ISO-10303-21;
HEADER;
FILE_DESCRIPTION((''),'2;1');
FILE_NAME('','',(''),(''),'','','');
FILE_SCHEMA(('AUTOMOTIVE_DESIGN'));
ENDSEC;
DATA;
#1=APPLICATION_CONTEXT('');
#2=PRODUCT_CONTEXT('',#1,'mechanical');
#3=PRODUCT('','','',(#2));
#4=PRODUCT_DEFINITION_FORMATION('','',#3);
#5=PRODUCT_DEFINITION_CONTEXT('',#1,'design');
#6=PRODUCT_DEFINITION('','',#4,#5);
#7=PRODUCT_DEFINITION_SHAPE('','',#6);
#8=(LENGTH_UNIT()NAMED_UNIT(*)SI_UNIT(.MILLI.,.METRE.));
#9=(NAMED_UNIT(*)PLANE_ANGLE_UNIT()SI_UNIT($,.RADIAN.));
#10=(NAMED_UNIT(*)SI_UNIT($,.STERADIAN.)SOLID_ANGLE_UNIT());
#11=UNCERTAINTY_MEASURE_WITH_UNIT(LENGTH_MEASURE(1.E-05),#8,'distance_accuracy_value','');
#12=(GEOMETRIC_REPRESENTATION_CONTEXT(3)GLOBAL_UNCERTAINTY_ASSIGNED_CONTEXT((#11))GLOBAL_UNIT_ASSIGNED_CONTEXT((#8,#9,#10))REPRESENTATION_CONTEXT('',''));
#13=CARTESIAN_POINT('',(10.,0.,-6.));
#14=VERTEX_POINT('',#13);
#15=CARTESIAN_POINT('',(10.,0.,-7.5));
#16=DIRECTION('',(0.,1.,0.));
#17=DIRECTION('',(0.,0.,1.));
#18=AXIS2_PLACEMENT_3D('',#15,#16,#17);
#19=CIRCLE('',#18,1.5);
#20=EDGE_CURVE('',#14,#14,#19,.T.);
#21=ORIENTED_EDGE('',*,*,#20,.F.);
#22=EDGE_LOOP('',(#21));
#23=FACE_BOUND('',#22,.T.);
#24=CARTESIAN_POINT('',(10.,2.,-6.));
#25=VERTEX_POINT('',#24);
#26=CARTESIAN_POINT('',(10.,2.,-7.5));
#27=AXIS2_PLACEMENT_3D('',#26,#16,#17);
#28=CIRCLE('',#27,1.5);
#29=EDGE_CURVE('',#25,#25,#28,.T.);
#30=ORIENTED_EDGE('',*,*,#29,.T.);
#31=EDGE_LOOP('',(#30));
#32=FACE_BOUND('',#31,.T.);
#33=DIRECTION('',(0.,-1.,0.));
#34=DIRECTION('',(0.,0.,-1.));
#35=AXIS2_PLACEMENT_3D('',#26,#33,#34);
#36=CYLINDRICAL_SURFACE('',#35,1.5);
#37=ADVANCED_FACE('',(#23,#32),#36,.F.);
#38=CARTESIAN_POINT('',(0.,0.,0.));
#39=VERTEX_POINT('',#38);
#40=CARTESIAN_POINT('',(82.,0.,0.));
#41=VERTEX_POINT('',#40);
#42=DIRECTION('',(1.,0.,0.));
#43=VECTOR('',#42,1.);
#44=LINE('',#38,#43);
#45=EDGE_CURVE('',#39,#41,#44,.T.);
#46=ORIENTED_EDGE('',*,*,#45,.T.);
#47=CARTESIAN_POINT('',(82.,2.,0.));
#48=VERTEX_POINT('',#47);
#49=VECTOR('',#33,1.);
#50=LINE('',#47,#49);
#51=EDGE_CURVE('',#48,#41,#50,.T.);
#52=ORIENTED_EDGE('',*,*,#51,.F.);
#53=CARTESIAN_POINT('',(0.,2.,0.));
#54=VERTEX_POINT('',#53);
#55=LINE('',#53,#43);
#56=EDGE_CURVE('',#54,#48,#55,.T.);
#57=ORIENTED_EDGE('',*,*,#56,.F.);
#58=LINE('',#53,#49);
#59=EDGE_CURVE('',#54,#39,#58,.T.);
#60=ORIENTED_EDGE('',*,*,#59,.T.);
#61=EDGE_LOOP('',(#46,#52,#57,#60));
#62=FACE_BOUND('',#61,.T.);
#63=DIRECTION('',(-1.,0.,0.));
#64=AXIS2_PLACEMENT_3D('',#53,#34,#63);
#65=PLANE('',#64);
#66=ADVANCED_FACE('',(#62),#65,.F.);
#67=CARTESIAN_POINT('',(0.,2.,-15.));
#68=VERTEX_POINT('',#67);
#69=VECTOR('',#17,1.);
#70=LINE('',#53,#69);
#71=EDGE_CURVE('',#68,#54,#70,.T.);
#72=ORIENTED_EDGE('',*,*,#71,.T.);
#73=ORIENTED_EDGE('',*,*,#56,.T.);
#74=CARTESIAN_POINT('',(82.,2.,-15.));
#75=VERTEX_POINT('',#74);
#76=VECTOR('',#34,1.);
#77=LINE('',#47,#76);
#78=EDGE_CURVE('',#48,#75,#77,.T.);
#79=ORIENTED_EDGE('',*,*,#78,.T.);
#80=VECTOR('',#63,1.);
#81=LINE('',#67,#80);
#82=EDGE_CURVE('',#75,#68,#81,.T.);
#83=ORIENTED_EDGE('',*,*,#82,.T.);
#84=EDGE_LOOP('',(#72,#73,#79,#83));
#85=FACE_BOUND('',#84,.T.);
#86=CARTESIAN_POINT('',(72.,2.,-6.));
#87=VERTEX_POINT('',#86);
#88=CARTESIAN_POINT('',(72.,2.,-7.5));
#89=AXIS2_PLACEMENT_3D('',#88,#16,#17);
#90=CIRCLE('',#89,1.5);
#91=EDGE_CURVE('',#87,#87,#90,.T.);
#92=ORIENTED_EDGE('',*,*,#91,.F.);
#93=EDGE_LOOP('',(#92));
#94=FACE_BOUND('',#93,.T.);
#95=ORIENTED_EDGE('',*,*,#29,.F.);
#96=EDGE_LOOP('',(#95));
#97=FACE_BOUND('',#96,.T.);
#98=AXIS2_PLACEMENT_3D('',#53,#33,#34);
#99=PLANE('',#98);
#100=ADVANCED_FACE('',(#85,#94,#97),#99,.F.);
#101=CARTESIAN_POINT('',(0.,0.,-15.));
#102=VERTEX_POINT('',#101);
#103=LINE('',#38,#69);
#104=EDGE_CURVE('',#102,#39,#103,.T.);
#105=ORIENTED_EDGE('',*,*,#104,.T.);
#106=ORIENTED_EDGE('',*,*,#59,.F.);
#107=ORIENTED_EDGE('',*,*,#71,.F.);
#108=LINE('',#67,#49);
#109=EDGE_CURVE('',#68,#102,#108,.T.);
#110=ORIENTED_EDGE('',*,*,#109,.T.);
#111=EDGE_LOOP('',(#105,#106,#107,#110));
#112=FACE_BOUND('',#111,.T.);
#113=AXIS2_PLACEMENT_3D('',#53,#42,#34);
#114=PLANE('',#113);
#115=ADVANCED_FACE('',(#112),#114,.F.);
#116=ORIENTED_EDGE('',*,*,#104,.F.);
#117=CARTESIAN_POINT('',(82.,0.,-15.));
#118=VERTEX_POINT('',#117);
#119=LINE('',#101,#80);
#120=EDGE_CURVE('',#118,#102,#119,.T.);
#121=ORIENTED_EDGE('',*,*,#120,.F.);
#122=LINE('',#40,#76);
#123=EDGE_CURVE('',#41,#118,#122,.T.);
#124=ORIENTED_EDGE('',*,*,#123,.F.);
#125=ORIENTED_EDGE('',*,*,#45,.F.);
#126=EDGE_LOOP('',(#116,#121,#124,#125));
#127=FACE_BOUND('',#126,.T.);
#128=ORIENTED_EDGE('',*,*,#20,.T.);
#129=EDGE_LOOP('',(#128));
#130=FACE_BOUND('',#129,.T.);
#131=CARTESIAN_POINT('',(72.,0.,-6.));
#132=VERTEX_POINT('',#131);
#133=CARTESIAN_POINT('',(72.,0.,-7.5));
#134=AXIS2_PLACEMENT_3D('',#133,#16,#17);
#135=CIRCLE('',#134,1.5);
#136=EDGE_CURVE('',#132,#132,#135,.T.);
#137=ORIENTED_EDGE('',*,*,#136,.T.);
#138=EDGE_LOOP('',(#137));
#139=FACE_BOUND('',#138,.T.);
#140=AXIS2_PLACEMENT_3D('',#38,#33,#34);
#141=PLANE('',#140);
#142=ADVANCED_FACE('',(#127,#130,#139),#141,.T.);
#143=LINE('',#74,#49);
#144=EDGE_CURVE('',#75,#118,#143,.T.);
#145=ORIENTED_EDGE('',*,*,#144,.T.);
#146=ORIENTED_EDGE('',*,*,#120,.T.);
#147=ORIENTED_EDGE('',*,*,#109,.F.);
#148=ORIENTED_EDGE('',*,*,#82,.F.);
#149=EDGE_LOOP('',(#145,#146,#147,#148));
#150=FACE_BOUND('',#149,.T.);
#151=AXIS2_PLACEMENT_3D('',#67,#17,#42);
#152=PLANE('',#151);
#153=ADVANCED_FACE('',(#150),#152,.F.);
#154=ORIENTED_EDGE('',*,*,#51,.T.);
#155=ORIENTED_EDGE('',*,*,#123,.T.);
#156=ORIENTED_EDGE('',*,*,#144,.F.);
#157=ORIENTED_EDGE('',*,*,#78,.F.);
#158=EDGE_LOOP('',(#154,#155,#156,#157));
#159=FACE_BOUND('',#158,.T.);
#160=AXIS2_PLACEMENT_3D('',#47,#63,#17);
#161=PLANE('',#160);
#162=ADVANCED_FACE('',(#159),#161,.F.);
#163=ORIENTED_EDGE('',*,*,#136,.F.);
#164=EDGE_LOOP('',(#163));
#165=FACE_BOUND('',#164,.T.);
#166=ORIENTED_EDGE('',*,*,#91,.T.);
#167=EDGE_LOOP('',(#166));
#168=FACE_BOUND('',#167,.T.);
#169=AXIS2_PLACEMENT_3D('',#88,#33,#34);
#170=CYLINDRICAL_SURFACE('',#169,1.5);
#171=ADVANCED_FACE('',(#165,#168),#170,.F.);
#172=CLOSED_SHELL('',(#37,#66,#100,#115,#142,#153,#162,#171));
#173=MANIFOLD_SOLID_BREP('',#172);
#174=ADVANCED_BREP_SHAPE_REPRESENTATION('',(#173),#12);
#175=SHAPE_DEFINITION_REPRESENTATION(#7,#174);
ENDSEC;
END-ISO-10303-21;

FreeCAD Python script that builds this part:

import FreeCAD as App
import Part
import Sketcher

V = App.Vector

doc = App.newDocument("Part")
body = doc.addObject("PartDesign::Body", "Body")

sketch1 = body.newObject("Sketcher::SketchObject", "Sketch")
sketch1.AttachmentSupport = (doc.getObject("XZ_Plane"), [""])
sketch1.MapMode = "FlatFace"
sketch1.addGeometry([
    Part.LineSegment(V(0, -15, 0), V(0, 0, 0)),
    Part.LineSegment(V(0, 0, 0), V(82, 0, 0)),
    Part.LineSegment(V(82, 0, 0), V(82, -15, 0)),
    Part.LineSegment(V(82, -15, 0), V(0, -15, 0)),
    Part.Circle(V(10, -7.5, 0), V(0, 0, 1), 1.5),
    Part.Circle(V(72, -7.5, 0), V(0, 0, 1), 1.5),
], False)
sketch1.addConstraint([
    Sketcher.Constraint("Coincident", 0, 2, 1, 1),
    Sketcher.Constraint("Coincident", 1, 2, 2, 1),
    Sketcher.Constraint("Coincident", 2, 2, 3, 1),
    Sketcher.Constraint("Coincident", 3, 2, 0, 1),
    Sketcher.Constraint("Vertical", 0),
    Sketcher.Constraint("Horizontal", 1),
    Sketcher.Constraint("Vertical", 2),
    Sketcher.Constraint("Horizontal", 3),
    Sketcher.Constraint("Coincident", 0, 2, -1, 1),
    Sketcher.Constraint("Equal", 4, 5),
    Sketcher.Constraint("Horizontal", 4, 3, 5, 3),
    Sketcher.Constraint("Diameter", 4, 3.0),
    Sketcher.Constraint("DistanceX", 1, 1, 1, 2, 82.0),
    Sketcher.Constraint("DistanceY", 0, 1, 0, 2, 15.0),
    Sketcher.Constraint("DistanceX", -1, 1, 4, 3, 10.0),
    Sketcher.Constraint("DistanceX", -1, 1, 5, 3, 72.0),
    Sketcher.Constraint("DistanceY", 4, 3, -1, 1, 7.5),
])
pad1 = body.newObject("PartDesign::Pad", "Pad")
pad1.Profile = sketch1
pad1.Length = 2
pad1.Reversed = True

doc.recompute()
